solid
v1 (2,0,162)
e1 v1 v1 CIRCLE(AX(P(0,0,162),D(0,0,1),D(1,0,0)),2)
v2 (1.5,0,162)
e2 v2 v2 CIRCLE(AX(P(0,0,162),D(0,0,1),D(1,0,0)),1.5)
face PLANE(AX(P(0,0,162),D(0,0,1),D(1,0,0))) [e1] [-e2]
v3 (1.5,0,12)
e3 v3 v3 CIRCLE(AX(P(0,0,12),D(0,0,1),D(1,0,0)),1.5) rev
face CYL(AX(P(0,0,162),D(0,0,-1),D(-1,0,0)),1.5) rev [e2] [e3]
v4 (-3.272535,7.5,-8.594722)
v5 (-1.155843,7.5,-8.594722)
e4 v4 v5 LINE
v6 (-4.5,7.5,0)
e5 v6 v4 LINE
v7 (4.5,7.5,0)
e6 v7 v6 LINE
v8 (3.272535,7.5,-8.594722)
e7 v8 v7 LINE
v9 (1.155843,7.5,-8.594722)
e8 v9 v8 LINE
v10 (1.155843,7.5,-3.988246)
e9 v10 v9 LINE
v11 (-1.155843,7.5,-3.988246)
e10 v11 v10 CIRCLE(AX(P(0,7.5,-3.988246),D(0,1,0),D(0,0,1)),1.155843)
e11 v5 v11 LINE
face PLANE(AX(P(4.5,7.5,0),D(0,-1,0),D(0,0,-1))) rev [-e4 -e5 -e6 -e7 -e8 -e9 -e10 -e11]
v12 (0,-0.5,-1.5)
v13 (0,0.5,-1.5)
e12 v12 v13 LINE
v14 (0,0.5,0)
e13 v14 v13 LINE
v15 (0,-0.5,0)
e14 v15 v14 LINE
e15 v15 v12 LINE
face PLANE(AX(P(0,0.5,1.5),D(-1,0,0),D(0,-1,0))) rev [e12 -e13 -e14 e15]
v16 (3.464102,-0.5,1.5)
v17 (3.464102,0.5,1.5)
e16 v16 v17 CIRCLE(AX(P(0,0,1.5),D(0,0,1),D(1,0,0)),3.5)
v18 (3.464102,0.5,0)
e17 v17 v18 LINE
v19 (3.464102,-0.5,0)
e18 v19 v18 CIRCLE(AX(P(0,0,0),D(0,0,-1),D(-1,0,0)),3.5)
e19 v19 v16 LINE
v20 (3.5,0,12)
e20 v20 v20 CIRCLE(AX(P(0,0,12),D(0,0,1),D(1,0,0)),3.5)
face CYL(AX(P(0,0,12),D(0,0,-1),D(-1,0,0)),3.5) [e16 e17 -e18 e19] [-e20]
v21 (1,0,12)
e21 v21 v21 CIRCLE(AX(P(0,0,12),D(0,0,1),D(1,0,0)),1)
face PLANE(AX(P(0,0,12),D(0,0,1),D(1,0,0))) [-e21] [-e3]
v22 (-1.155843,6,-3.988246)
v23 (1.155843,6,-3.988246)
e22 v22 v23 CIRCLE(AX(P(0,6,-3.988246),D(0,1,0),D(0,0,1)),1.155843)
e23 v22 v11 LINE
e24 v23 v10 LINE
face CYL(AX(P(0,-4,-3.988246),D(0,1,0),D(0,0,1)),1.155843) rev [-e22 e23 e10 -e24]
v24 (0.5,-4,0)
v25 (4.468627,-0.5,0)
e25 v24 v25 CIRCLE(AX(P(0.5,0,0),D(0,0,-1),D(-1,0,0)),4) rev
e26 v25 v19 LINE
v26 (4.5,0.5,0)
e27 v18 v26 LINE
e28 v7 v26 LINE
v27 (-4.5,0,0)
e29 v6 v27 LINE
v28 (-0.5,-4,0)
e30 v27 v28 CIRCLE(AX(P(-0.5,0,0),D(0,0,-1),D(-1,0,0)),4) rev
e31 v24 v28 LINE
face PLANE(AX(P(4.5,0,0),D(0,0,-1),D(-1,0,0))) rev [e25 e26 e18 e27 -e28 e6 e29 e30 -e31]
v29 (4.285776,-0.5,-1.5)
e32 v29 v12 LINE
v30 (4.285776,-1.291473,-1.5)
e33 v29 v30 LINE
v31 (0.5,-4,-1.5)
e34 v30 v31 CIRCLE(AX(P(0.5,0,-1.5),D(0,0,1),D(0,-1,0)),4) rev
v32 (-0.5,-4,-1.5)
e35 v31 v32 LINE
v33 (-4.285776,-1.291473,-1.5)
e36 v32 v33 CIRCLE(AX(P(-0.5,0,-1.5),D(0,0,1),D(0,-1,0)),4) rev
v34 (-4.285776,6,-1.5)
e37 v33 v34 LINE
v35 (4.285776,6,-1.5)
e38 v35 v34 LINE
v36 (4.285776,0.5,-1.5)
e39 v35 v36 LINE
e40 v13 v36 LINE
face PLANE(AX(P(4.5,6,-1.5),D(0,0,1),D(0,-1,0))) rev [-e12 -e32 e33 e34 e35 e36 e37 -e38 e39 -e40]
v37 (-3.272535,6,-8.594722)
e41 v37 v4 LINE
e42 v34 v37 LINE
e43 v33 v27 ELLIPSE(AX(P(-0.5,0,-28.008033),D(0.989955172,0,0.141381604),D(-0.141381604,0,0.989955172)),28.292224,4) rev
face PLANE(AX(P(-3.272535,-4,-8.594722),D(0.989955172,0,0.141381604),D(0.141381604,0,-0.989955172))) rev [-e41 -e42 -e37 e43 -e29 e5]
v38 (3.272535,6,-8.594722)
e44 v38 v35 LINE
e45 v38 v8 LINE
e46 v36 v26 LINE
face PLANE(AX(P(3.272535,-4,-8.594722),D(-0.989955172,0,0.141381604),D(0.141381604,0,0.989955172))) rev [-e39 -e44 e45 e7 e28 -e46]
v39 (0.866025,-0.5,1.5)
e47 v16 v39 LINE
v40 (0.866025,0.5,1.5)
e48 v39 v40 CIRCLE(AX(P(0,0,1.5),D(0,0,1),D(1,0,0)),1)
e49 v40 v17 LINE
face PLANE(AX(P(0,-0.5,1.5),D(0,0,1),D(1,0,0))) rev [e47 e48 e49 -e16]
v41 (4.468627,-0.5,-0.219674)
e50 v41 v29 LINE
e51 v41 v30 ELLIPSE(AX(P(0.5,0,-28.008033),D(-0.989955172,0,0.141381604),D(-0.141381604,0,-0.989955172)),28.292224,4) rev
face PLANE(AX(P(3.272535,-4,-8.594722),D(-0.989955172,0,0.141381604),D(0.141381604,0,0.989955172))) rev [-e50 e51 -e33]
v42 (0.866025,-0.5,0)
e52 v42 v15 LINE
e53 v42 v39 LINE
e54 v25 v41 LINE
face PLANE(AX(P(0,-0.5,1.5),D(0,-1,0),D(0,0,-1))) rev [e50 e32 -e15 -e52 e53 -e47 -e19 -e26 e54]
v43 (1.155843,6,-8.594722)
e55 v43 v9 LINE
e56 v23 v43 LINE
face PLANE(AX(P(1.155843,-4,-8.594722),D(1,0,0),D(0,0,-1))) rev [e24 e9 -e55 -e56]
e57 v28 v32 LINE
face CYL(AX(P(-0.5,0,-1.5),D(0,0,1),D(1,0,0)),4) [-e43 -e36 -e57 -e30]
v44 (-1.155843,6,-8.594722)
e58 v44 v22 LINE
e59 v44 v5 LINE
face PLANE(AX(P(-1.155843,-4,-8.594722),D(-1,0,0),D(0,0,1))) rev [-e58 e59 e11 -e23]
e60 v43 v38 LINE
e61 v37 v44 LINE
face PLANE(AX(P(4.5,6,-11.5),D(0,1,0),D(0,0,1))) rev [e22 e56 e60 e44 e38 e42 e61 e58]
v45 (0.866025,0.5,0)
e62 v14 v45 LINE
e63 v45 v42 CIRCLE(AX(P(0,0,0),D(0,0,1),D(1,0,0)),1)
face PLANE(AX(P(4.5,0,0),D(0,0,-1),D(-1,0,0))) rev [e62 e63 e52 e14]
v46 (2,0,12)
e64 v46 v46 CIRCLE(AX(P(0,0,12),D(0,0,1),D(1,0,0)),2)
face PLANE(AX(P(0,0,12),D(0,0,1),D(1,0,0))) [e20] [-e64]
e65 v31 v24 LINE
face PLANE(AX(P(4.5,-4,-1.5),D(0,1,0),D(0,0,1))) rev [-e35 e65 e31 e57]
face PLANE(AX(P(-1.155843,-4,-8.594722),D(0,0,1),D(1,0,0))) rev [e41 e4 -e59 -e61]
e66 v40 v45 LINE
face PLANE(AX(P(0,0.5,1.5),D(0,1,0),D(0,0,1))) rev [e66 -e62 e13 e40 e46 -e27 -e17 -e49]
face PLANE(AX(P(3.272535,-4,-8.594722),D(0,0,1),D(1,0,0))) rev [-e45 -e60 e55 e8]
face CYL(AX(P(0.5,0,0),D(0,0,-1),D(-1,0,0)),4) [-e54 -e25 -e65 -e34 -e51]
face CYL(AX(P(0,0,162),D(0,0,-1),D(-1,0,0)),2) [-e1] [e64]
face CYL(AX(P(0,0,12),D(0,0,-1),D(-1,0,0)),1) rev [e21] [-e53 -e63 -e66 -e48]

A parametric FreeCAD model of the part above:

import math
import FreeCAD as App
import Part
import Sketcher
from FreeCAD import Vector
Q = App.Units.Quantity


def edges_at(feature, points):
    """Names of the edges that pass closest to the given points."""
    edges = feature.Shape.Edges
    near = lambda p: min(range(len(edges)), key=lambda i: edges[i].distToShape(Part.Vertex(*p))[0])
    return sorted({f"Edge{near(p) + 1}" for p in points})


def add_polygon(sketch, points):
    """Adds a closed chain of lines whose ends are joined by coincident constraints."""
    first, n = sketch.GeometryCount, len(points)
    for a, b in zip(points, points[1:] + points[:1]):
        sketch.addGeometry(Part.LineSegment(App.Vector(*a, 0), App.Vector(*b, 0)), False)
    for i in range(n):
        sketch.addConstraint(Sketcher.Constraint("Coincident", first + i, 2, first + (i + 1) % n, 1))

doc = App.newDocument("Part")
body = doc.addObject("PartDesign::Body", "Body")

# Sketch on XY plane
sketch1 = doc.addObject("Sketcher::SketchObject", "Sketch")
body.addObject(sketch1)
sketch1.AttachmentSupport = (doc.XY_Plane, [""])
sketch1.MapMode = "FlatFace"
sketch1.addGeometry(Part.Circle(Vector(0, 0, 0), Vector(0, 0, 1), 3.5), False)
sketch1.addGeometry(Part.Circle(Vector(0, 0, 0), Vector(0, 0, 1), 1), False)
sketch1.addConstraint(Sketcher.Constraint("Coincident", 0, 3, -1, 1))
sketch1.addConstraint(Sketcher.Constraint("Coincident", 1, 3, -1, 1))
sketch1.addConstraint(Sketcher.Constraint("Diameter", 0, Q("7 mm")))
sketch1.addConstraint(Sketcher.Constraint("Diameter", 1, Q("2 mm")))
pad1 = doc.addObject("PartDesign::Pad", "Pad")
body.addObject(pad1)
pad1.Profile = sketch1
pad1.Length = 12

# Sketch on XY plane
sketch2 = doc.addObject("Sketcher::SketchObject", "Sketch001")
body.addObject(sketch2)
sketch2.AttachmentSupport = (doc.XY_Plane, [""])
sketch2.MapMode = "FlatFace"
sketch2.AttachmentOffset = App.Placement(Vector(0, 0, 12), App.Rotation())
sketch2.addGeometry(Part.Circle(Vector(0, 0, 0), Vector(0, 0, 1), 2), False)
sketch2.addGeometry(Part.Circle(Vector(0, 0, 0), Vector(0, 0, 1), 1.5), False)
sketch2.addConstraint(Sketcher.Constraint("Coincident", 0, 3, -1, 1))
sketch2.addConstraint(Sketcher.Constraint("Coincident", 1, 3, -1, 1))
sketch2.addConstraint(Sketcher.Constraint("Diameter", 0, Q("4 mm")))
sketch2.addConstraint(Sketcher.Constraint("Diameter", 1, Q("3 mm")))
pad2 = doc.addObject("PartDesign::Pad", "Pad001")
body.addObject(pad2)
pad2.Profile = sketch2
pad2.Length = 150

# Sketch on YZ plane
sketch3 = doc.addObject("Sketcher::SketchObject", "Sketch002")
body.addObject(sketch3)
sketch3.AttachmentSupport = (doc.YZ_Plane, [""])
sketch3.MapMode = "FlatFace"
add_polygon(sketch3, [(7.5, 0), (-4, 0), (-4, -1.5), (6, -1.5), (6, -11.5), (7.5, -11.5)])  # lines 0-5
sketch3.addConstraint(Sketcher.Constraint("Horizontal", 0))
sketch3.addConstraint(Sketcher.Constraint("Vertical", 1))
sketch3.addConstraint(Sketcher.Constraint("Horizontal", 2))
sketch3.addConstraint(Sketcher.Constraint("Vertical", 3))
sketch3.addConstraint(Sketcher.Constraint("Horizontal", 4))
sketch3.addConstraint(Sketcher.Constraint("Vertical", 5))
sketch3.addConstraint(Sketcher.Constraint("PointOnObject", 0, 2, -1))
sketch3.addConstraint(Sketcher.Constraint("Equal", 4, 1))
sketch3.addConstraint(Sketcher.Constraint("Equal", 2, 3))
sketch3.addConstraint(Sketcher.Constraint("DistanceX", 2, 1, 2, 2, Q("10 mm")))
sketch3.addConstraint(Sketcher.Constraint("DistanceX", 0, 2, 0, 1, Q("11.5 mm")))
sketch3.addConstraint(Sketcher.Constraint("DistanceX", 0, 2, -1, 1, Q("4 mm")))
pad3 = doc.addObject("PartDesign::Pad", "Pad002")
body.addObject(pad3)
pad3.Profile = sketch3
pad3.Length = 9
pad3.Midplane = True
doc.recompute()

fillet = doc.addObject("PartDesign::Fillet", "Fillet")
body.addObject(fillet)
fillet.Base = (pad3, edges_at(pad3, [(4.5, -4, -0.75), (-4.5, -4, -0.75)]))
fillet.Radius = 4

# Sketch on XY plane
sketch4 = doc.addObject("Sketcher::SketchObject", "Sketch003")
body.addObject(sketch4)
sketch4.AttachmentSupport = (doc.XY_Plane, [""])
sketch4.MapMode = "FlatFace"
sketch4.AttachmentOffset = App.Placement(Vector(0, 0, -1.5), App.Rotation())
add_polygon(sketch4, [(7, 0.5), (7, -0.5), (0, -0.5), (0, 0.5)])  # lines 0-3
sketch4.addConstraint(Sketcher.Constraint("Vertical", 0))
sketch4.addConstraint(Sketcher.Constraint("Horizontal", 1))
sketch4.addConstraint(Sketcher.Constraint("Vertical", 2))
sketch4.addConstraint(Sketcher.Constraint("Horizontal", 3))
sketch4.addConstraint(Sketcher.Constraint("Symmetric", 1, 2, 2, 2, -1, 1))
sketch4.addConstraint(Sketcher.Constraint("DistanceX", 1, 2, 1, 1, Q("7 mm")))
sketch4.addConstraint(Sketcher.Constraint("DistanceY", 0, 2, 0, 1, Q("1 mm")))
pocket1 = doc.addObject("PartDesign::Pocket", "Pocket")
body.addObject(pocket1)
pocket1.Profile = sketch4
pocket1.Length = 3
pocket1.Reversed = True

# Sketch on XZ plane
sketch5 = doc.addObject("Sketcher::SketchObject", "Sketch004")
body.addObject(sketch5)
sketch5.AttachmentSupport = (doc.XZ_Plane, [""])
sketch5.MapMode = "FlatFace"
sketch5.AttachmentOffset = App.Placement(Vector(0, 0, -7.5), App.Rotation())
sketch5.addGeometry(Part.LineSegment(Vector(-1.2, -8.6, 0), Vector(-1.2, -4, 0)), False)
sketch5.addGeometry(Part.ArcOfCircle(Part.Circle(Vector(0, -4, 0), Vector(0, 0, 1), 1.2), math.radians(0), math.radians(180)), False)
sketch5.addGeometry(Part.LineSegment(Vector(1.2, -4, 0), Vector(1.2, -8.6, 0)), False)
sketch5.addGeometry(Part.LineSegment(Vector(1.2, -8.6, 0), Vector(3.3, -8.6, 0)), False)
sketch5.addGeometry(Part.LineSegment(Vector(3.3, -8.6, 0), Vector(4.5, 0, 0)), False)
sketch5.addGeometry(Part.LineSegment(Vector(4.5, 0, 0), Vector(6, 0, 0)), False)
sketch5.addGeometry(Part.LineSegment(Vector(6, 0, 0), Vector(6, -13, 0)), False)
sketch5.addGeometry(Part.LineSegment(Vector(6, -13, 0), Vector(-6, -13, 0)), False)
sketch5.addGeometry(Part.LineSegment(Vector(-6, -13, 0), Vector(-6, 0, 0)), False)
sketch5.addGeometry(Part.LineSegment(Vector(-6, 0, 0), Vector(-4.5, 0, 0)), False)
sketch5.addGeometry(Part.LineSegment(Vector(-4.5, 0, 0), Vector(-3.3, -8.6, 0)), False)
sketch5.addGeometry(Part.LineSegment(Vector(-3.3, -8.6, 0), Vector(-1.2, -8.6, 0)), False)
sketch5.addConstraint(Sketcher.Constraint("Tangent", 0, 2, 1, 2))
sketch5.addConstraint(Sketcher.Constraint("Tangent", 1, 1, 2, 1))
sketch5.addConstraint(Sketcher.Constraint("Coincident", 2, 2, 3, 1))
sketch5.addConstraint(Sketcher.Constraint("Coincident", 3, 2, 4, 1))
sketch5.addConstraint(Sketcher.Constraint("Coincident", 4, 2, 5, 1))
sketch5.addConstraint(Sketcher.Constraint("Coincident", 5, 2, 6, 1))
sketch5.addConstraint(Sketcher.Constraint("Coincident", 6, 2, 7, 1))
sketch5.addConstraint(Sketcher.Constraint("Coincident", 7, 2, 8, 1))
sketch5.addConstraint(Sketcher.Constraint("Coincident", 8, 2, 9, 1))
sketch5.addConstraint(Sketcher.Constraint("Coincident", 9, 2, 10, 1))
sketch5.addConstraint(Sketcher.Constraint("Coincident", 10, 2, 11, 1))
sketch5.addConstraint(Sketcher.Constraint("Coincident", 11, 2, 0, 1))
sketch5.addConstraint(Sketcher.Constraint("Vertical", 0))
sketch5.addConstraint(Sketcher.Constraint("Vertical", 2))
sketch5.addConstraint(Sketcher.Constraint("Horizontal", 3))
sketch5.addConstraint(Sketcher.Constraint("Horizontal", 5))
sketch5.addConstraint(Sketcher.Constraint("Vertical", 6))
sketch5.addConstraint(Sketcher.Constraint("Horizontal", 7))
sketch5.addConstraint(Sketcher.Constraint("Vertical", 8))
sketch5.addConstraint(Sketcher.Constraint("Horizontal", 9))
sketch5.addConstraint(Sketcher.Constraint("Horizontal", 11))
sketch5.addConstraint(Sketcher.Constraint("Symmetric", 5, 2, 8, 2, -1, 1))
sketch5.addConstraint(Sketcher.Constraint("Symmetric", 4, 2, 9, 2, -2))
sketch5.addConstraint(Sketcher.Constraint("Symmetric", 3, 2, 10, 2, -2))
sketch5.addConstraint(Sketcher.Constraint("PointOnObject", 1, 3, -2))
sketch5.addConstraint(Sketcher.Constraint("DistanceX", 7, 2, 7, 1, Q("12 mm")))
sketch5.addConstraint(Sketcher.Constraint("DistanceY", 6, 2, 6, 1, Q("13 mm")))
sketch5.addConstraint(Sketcher.Constraint("DistanceX", 5, 1, 5, 2, Q("1.5 mm")))
sketch5.addConstraint(Sketcher.Constraint("Radius", 1, Q("1.155843 mm")))
sketch5.addConstraint(Sketcher.Constraint("DistanceX", 3, 1, 3, 2, Q("2.116692 mm")))
sketch5.addConstraint(Sketcher.Constraint("Distance", 4, Q("8.68193 mm")))
sketch5.addConstraint(Sketcher.Constraint("DistanceY", 0, 1, 0, 2, Q("4.606475 mm")))
pocket2 = doc.addObject("PartDesign::Pocket", "Pocket001")
body.addObject(pocket2)
pocket2.Profile = sketch5
pocket2.Type = "ThroughAll"
pocket2.Reversed = True

doc.recompute()
